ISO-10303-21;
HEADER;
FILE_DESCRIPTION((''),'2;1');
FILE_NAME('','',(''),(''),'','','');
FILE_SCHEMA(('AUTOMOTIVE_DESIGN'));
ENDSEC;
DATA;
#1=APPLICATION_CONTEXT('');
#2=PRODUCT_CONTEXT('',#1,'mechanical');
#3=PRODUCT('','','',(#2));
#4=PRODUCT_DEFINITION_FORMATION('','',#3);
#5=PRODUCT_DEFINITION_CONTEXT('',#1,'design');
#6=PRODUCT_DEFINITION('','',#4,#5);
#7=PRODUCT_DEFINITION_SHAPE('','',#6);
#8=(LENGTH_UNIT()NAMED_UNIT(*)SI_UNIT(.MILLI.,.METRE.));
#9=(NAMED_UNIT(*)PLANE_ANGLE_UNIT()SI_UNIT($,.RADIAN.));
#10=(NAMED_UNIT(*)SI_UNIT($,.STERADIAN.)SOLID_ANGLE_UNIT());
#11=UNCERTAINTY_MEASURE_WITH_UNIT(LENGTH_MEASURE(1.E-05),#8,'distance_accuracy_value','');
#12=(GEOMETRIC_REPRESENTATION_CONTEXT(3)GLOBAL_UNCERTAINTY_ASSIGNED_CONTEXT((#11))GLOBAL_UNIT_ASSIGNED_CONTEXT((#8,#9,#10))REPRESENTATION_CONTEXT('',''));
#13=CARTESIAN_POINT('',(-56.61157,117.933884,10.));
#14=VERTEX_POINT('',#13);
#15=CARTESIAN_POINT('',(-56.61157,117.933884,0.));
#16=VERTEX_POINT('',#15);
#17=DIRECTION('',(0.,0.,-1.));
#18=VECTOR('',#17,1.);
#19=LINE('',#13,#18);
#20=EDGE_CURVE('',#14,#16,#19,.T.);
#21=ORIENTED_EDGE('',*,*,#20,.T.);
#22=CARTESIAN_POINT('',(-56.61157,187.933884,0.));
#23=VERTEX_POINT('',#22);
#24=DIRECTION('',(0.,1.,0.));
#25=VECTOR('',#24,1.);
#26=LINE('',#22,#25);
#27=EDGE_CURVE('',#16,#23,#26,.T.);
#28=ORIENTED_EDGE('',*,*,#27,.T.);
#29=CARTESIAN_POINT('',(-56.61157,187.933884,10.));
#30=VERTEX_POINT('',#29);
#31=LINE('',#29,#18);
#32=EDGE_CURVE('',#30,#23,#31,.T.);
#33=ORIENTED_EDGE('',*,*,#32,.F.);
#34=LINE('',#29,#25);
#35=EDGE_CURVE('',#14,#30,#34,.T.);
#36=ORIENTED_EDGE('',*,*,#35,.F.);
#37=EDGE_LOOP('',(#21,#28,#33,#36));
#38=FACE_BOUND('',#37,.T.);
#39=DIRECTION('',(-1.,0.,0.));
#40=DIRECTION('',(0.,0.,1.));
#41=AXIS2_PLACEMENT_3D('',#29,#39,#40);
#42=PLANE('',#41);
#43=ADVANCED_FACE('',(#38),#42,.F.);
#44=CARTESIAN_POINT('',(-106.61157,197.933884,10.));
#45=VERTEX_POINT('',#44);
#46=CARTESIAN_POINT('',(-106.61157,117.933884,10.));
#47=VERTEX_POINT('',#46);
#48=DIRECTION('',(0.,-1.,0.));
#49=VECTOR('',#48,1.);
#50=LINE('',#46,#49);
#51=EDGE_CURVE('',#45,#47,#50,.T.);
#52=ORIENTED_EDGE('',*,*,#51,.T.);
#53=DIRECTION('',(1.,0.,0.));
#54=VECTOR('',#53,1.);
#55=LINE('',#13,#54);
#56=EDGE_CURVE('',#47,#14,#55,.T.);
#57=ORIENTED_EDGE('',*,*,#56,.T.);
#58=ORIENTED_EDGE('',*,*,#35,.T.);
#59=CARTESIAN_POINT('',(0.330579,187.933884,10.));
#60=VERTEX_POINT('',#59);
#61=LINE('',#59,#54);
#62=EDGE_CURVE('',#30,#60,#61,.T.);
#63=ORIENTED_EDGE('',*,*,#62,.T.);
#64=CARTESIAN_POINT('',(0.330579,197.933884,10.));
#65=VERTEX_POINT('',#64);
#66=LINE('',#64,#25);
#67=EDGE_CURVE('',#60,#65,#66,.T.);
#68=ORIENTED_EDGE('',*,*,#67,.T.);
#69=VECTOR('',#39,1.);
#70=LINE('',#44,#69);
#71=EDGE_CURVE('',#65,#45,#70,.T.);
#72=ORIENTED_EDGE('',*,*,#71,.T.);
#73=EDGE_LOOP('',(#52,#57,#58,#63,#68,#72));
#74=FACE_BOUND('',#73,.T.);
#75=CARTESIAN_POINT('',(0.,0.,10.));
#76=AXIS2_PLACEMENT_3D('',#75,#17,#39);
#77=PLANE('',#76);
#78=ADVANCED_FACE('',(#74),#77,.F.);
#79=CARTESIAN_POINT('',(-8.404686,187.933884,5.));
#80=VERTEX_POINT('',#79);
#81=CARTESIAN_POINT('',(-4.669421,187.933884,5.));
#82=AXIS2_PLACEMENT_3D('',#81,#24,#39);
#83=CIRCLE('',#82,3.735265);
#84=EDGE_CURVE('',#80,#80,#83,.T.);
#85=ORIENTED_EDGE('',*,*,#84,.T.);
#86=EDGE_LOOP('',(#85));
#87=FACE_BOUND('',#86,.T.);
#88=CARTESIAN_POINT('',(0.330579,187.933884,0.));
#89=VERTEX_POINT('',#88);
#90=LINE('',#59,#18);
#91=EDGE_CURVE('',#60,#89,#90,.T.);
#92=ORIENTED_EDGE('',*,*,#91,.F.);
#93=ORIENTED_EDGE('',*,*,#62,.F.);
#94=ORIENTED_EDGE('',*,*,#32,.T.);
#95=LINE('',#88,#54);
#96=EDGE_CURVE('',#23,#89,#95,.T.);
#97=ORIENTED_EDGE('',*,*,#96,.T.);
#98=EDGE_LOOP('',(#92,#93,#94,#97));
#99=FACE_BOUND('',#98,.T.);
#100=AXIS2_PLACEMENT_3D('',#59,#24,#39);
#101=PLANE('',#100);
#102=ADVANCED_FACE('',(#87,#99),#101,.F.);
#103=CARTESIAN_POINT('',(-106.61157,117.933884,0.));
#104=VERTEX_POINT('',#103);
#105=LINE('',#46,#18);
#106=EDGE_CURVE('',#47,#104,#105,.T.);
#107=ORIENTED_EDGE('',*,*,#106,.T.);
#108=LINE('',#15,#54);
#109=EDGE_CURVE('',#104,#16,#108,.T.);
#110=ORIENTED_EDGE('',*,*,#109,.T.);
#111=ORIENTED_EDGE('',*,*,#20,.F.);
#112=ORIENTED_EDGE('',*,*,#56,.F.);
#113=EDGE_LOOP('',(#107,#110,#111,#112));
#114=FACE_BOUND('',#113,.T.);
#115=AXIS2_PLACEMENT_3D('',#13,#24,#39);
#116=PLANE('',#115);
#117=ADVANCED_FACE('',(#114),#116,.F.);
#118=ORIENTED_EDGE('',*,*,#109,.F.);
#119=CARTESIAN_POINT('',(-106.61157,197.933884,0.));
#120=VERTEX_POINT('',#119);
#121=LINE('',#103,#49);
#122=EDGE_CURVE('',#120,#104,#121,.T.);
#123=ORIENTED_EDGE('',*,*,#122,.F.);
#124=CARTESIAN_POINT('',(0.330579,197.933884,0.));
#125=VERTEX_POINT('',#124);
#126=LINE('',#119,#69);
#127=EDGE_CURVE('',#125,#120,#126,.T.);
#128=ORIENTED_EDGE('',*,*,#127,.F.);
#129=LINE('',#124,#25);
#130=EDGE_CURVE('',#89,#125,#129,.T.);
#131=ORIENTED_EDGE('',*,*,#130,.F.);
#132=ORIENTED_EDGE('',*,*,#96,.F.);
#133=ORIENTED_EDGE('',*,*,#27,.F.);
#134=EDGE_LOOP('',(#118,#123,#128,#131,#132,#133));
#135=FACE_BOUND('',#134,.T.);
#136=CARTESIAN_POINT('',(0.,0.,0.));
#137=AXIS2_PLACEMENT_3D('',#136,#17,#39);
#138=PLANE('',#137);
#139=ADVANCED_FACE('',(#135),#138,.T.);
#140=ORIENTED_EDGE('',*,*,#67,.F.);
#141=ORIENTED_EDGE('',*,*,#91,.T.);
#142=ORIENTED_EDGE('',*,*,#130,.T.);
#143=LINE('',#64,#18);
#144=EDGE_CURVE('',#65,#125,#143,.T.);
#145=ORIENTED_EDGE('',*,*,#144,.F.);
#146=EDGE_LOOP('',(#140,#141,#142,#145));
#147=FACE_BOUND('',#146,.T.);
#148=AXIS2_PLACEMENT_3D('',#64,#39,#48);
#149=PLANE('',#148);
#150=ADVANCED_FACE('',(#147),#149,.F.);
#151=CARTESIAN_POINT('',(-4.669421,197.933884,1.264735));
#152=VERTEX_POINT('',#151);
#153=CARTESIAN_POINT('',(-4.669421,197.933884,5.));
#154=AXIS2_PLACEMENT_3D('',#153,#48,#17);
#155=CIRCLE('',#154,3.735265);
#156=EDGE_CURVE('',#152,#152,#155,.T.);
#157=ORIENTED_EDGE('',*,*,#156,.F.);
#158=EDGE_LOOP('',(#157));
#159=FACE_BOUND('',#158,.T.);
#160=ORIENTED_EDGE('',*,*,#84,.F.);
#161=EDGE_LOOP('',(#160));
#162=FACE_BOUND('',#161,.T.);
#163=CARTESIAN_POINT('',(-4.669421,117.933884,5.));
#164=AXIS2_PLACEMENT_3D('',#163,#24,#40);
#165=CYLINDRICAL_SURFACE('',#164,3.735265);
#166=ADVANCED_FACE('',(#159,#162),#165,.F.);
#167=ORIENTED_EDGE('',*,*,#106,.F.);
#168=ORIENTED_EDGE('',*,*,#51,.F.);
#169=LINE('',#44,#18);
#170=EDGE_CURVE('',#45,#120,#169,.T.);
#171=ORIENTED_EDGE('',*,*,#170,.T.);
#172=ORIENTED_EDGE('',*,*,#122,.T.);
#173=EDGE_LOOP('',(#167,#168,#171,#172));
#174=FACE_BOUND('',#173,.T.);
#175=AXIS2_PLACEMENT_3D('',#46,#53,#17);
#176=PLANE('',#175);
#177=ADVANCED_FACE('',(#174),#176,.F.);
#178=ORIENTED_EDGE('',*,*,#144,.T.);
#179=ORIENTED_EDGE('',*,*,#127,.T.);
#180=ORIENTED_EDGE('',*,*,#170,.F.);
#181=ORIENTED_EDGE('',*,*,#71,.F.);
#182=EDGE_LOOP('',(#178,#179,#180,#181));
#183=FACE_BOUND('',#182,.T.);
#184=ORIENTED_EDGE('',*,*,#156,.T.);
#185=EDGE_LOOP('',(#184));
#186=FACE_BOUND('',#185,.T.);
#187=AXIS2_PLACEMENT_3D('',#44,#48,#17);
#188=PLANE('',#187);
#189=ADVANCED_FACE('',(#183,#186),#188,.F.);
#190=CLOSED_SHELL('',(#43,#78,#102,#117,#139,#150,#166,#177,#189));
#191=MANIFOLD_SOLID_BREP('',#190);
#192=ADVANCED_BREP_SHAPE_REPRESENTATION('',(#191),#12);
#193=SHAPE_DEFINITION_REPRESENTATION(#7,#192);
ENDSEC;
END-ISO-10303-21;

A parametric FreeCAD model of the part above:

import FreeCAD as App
import Part
import Sketcher


def add_polygon(sketch, points):
    """Adds a closed chain of lines whose ends are joined by coincident constraints."""
    first, n = sketch.GeometryCount, len(points)
    for a, b in zip(points, points[1:] + points[:1]):
        sketch.addGeometry(Part.LineSegment(App.Vector(*a, 0), App.Vector(*b, 0)), False)
    for i in range(n):
        sketch.addConstraint(Sketcher.Constraint("Coincident", first + i, 2, first + (i + 1) % n, 1))

doc = App.newDocument("Part")
params = doc.addObject("Spreadsheet::Sheet", "Params")
for row, (alias, value) in enumerate([
    ("sketch1_width", "50 mm"),
    ("sketch1_height", "10 mm"),
    ("sketch1_height2", "80 mm"),
    ("pad1_length", "10 mm"),
], start=1):
    params.set(f"A{row}", alias)
    params.set(f"B{row}", "=" + value)
    params.setAlias(f"B{row}", alias)

body = doc.addObject("PartDesign::Body", "Body")

# Sketch on XY plane
sketch1 = body.newObject("Sketcher::SketchObject", "Sketch")
sketch1.AttachmentSupport = (doc.getObject("XY_Plane"), [""])
sketch1.MapMode = "FlatFace"
add_polygon(sketch1, [(0, 188), (0, 198), (-107, 198), (-107, 118), (-57, 118), (-57, 188)])  # lines 0-5
sketch1.addConstraint(Sketcher.Constraint("Vertical", 0))
sketch1.addConstraint(Sketcher.Constraint("Horizontal", 1))
sketch1.addConstraint(Sketcher.Constraint("Vertical", 2))
sketch1.addConstraint(Sketcher.Constraint("Horizontal", 3))
sketch1.addConstraint(Sketcher.Constraint("Vertical", 4))
sketch1.addConstraint(Sketcher.Constraint("Horizontal", 5))
sketch1.addConstraint(Sketcher.Constraint("DistanceX", 3, 1, 3, 2, 50.0))
sketch1.addConstraint(Sketcher.Constraint("DistanceY", 0, 1, 0, 2, 10.0))
sketch1.addConstraint(Sketcher.Constraint("DistanceY", 2, 2, 2, 1, 80.0))
sketch1.addConstraint(Sketcher.Constraint("DistanceX", 1, 2, 1, 1, 106.942149))
sketch1.addConstraint(Sketcher.Constraint("DistanceX", -1, 1, 0, 2, 0.330579))
sketch1.addConstraint(Sketcher.Constraint("DistanceY", -1, 1, 0, 2, 197.933884))
sketch1.setExpression("Constraints[12]", "Params.sketch1_width")
sketch1.setExpression("Constraints[13]", "Params.sketch1_height")
sketch1.setExpression("Constraints[14]", "Params.sketch1_height2")
pad1 = body.newObject("PartDesign::Pad", "Pad")
pad1.Profile = sketch1
pad1.setExpression("Length", "Params.pad1_length")

# Sketch on XZ plane
sketch2 = body.newObject("Sketcher::SketchObject", "Sketch001")
sketch2.AttachmentSupport = (doc.getObject("XZ_Plane"), [""])
sketch2.MapMode = "FlatFace"
sketch2.AttachmentOffset = App.Placement(App.Vector(0, 0, -197.933884), App.Rotation())
sketch2.addGeometry(Part.Circle(App.Vector(-4.7, 5, 0), App.Vector(0, 0, 1), 3.7), False)
sketch2.addConstraint(Sketcher.Constraint("DistanceY", -1, 1, 0, 3, 5.0))
sketch2.addConstraint(Sketcher.Constraint("Diameter", 0, 7.47053))
sketch2.addConstraint(Sketcher.Constraint("DistanceX", 0, 3, -1, 1, 4.669421))
pocket1 = body.newObject("PartDesign::Pocket", "Pocket")
pocket1.Profile = sketch2
pocket1.Type = "ThroughAll"
pocket1.Midplane = True

doc.recompute()
